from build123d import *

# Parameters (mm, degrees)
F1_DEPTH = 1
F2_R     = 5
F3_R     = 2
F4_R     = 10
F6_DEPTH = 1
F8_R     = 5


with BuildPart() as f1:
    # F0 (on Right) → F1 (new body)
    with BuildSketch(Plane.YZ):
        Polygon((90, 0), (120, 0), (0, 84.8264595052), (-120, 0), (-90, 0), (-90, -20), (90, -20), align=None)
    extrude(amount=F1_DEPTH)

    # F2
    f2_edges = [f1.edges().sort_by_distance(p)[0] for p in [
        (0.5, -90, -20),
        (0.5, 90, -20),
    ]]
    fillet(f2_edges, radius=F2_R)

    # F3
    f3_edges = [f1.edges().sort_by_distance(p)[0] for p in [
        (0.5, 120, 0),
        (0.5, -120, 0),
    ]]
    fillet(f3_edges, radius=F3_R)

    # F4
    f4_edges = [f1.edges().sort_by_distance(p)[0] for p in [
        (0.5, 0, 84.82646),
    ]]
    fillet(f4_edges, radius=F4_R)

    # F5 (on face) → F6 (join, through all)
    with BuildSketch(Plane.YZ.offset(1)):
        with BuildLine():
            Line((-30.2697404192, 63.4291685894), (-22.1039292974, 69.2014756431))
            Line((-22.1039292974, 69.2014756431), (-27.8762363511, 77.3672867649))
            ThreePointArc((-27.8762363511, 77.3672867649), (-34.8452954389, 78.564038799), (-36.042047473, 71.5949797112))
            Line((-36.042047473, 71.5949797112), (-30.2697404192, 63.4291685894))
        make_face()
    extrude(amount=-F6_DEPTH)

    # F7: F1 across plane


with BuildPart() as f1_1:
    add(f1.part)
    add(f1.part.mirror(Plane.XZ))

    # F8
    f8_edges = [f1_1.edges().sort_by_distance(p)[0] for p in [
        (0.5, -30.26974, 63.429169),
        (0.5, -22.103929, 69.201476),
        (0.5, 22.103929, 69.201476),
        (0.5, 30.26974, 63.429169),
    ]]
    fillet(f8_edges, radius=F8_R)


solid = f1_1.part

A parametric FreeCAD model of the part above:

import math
import FreeCAD as App
import Part
import Sketcher
Q = App.Units.Quantity


def edges_at(feature, points):
    """Names of the edges that pass closest to the given points."""
    edges = feature.Shape.Edges
    near = lambda p: min(range(len(edges)), key=lambda i: edges[i].distToShape(Part.Vertex(*p))[0])
    return sorted({f"Edge{near(p) + 1}" for p in points})

doc = App.newDocument("Part")
body = doc.addObject("PartDesign::Body", "Body")

sketch1 = body.newObject("Sketcher::SketchObject", "Sketch")
sketch1.AttachmentSupport = (doc.getObject("YZ_Plane"), [""])
sketch1.MapMode = "FlatFace"
sketch1.addGeometry(Part.LineSegment(App.Vector(90, 0, 0), App.Vector(120, 0, 0)), False)
sketch1.addGeometry(Part.LineSegment(App.Vector(120, 0, 0), App.Vector(0, 85, 0)), False)
sketch1.addGeometry(Part.LineSegment(App.Vector(0, 85, 0), App.Vector(-120, 0, 0)), False)
sketch1.addGeometry(Part.LineSegment(App.Vector(-120, 0, 0), App.Vector(-90, 0, 0)), False)
sketch1.addGeometry(Part.LineSegment(App.Vector(-90, 0, 0), App.Vector(-90, -20, 0)), False)
sketch1.addGeometry(Part.LineSegment(App.Vector(-90, -20, 0), App.Vector(90, -20, 0)), False)
sketch1.addGeometry(Part.LineSegment(App.Vector(90, -20, 0), App.Vector(90, 0, 0)), False)
sketch1.addConstraint(Sketcher.Constraint("Coincident", 0, 2, 1, 1))
sketch1.addConstraint(Sketcher.Constraint("Coincident", 1, 2, 2, 1))
sketch1.addConstraint(Sketcher.Constraint("Coincident", 2, 2, 3, 1))
sketch1.addConstraint(Sketcher.Constraint("Coincident", 3, 2, 4, 1))
sketch1.addConstraint(Sketcher.Constraint("Coincident", 4, 2, 5, 1))
sketch1.addConstraint(Sketcher.Constraint("Coincident", 5, 2, 6, 1))
sketch1.addConstraint(Sketcher.Constraint("Coincident", 6, 2, 0, 1))
sketch1.addConstraint(Sketcher.Constraint("Horizontal", 0))
sketch1.addConstraint(Sketcher.Constraint("Horizontal", 3))
sketch1.addConstraint(Sketcher.Constraint("Vertical", 4))
sketch1.addConstraint(Sketcher.Constraint("Horizontal", 5))
sketch1.addConstraint(Sketcher.Constraint("Vertical", 6))
sketch1.addConstraint(Sketcher.Constraint("Symmetric", 0, 2, 2, 2, -1, 1))
sketch1.addConstraint(Sketcher.Constraint("Symmetric", 3, 2, 6, 2, -2))
sketch1.addConstraint(Sketcher.Constraint("PointOnObject", 1, 2, -2))
sketch1.addConstraint(Sketcher.Constraint("DistanceX", 0, 1, 0, 2, Q("30 mm")))
sketch1.addConstraint(Sketcher.Constraint("DistanceX", 5, 1, 5, 2, Q("180 mm")))
sketch1.addConstraint(Sketcher.Constraint("DistanceY", 4, 2, 4, 1, Q("20 mm")))
sketch1.addConstraint(Sketcher.Constraint("Distance", 1, Q("146.954171 mm")))
pad1 = body.newObject("PartDesign::Pad", "Pad")
pad1.Profile = sketch1
pad1.Length = 1
doc.recompute()

fillet = body.newObject("PartDesign::Fillet", "Fillet")
fillet.Base = (pad1, edges_at(pad1, [(0.5, -90, -20), (0.5, 90, -20)]))
fillet.Radius = 5
doc.recompute()

fillet2 = body.newObject("PartDesign::Fillet", "Fillet001")
fillet2.Base = (fillet, edges_at(fillet, [(0.5, 120, 0), (0.5, -120, 0)]))
fillet2.Radius = 2
doc.recompute()

fillet3 = body.newObject("PartDesign::Fillet", "Fillet002")
fillet3.Base = (fillet2, edges_at(fillet2, [(0.5, 0, 84.826)]))
fillet3.Radius = 10

sketch2 = body.newObject("Sketcher::SketchObject", "Sketch001")
sketch2.AttachmentSupport = (doc.getObject("YZ_Plane"), [""])
sketch2.MapMode = "FlatFace"
sketch2.AttachmentOffset = App.Placement(App.Vector(0, 0, 1), App.Rotation())
sketch2.addGeometry(Part.LineSegment(App.Vector(-30, 63, 0), App.Vector(-22, 69, 0)), False)
sketch2.addGeometry(Part.LineSegment(App.Vector(-22, 69, 0), App.Vector(-28, 77, 0)), False)
sketch2.addGeometry(Part.ArcOfCircle(Part.Circle(App.Vector(-32, 74, 0), App.Vector(0, 0, 1), 5), math.radians(35), math.radians(215)), False)
sketch2.addGeometry(Part.LineSegment(App.Vector(-36, 72, 0), App.Vector(-30, 63, 0)), False)
sketch2.addConstraint(Sketcher.Constraint("Coincident", 0, 2, 1, 1))
sketch2.addConstraint(Sketcher.Constraint("Tangent", 1, 2, 2, 1))
sketch2.addConstraint(Sketcher.Constraint("Tangent", 2, 2, 3, 1))
sketch2.addConstraint(Sketcher.Constraint("Coincident", 3, 2, 0, 1))
sketch2.addConstraint(Sketcher.Constraint("Perpendicular", 0, 1))
sketch2.addConstraint(Sketcher.Constraint("Parallel", 1, 3))
sketch2.addConstraint(Sketcher.Constraint("Equal", 0, 1))
sketch2.addConstraint(Sketcher.Constraint("Radius", 2, Q("5 mm")))
sketch2.addConstraint(Sketcher.Constraint("DistanceX", 2, 3, 3, 2, Q("1.689401 mm")))
sketch2.addConstraint(Sketcher.Constraint("DistanceX", 2, 3, -1, 1, Q("31.959142 mm")))
sketch2.addConstraint(Sketcher.Constraint("DistanceY", -1, 1, 2, 2, Q("71.59498 mm")))
pad2 = body.newObject("PartDesign::Pad", "Pad001")
pad2.Profile = sketch2
pad2.Length = 1
pad2.Reversed = True
body2 = doc.addObject("PartDesign::Body", "Body001")
doc.recompute()

body2.BaseFeature = body
doc.recompute()

mirroring = doc.addObject("Part::Mirroring", "Mirroring")
mirroring.Source = body
mirroring.Base = App.Vector(0, 0, 0)
mirroring.Normal = App.Vector(0, -1, 0)
body3 = doc.addObject("PartDesign::Body", "Body002")
body3.BaseFeature = mirroring
boolean = body2.newObject("PartDesign::Boolean", "Boolean")
boolean.Type = "Fuse"
boolean.addObjects([body3])
doc.recompute()

fillet4 = body2.newObject("PartDesign::Fillet", "Fillet003")
fillet4.Base = (boolean, edges_at(boolean, [
    (0.5, -30.27, 63.429),
    (0.5, -22.104, 69.201),
    (0.5, 22.104, 69.201),
    (0.5, 30.27, 63.429),
]))
fillet4.Radius = 5
mirroring.Visibility = False

doc.recompute()
